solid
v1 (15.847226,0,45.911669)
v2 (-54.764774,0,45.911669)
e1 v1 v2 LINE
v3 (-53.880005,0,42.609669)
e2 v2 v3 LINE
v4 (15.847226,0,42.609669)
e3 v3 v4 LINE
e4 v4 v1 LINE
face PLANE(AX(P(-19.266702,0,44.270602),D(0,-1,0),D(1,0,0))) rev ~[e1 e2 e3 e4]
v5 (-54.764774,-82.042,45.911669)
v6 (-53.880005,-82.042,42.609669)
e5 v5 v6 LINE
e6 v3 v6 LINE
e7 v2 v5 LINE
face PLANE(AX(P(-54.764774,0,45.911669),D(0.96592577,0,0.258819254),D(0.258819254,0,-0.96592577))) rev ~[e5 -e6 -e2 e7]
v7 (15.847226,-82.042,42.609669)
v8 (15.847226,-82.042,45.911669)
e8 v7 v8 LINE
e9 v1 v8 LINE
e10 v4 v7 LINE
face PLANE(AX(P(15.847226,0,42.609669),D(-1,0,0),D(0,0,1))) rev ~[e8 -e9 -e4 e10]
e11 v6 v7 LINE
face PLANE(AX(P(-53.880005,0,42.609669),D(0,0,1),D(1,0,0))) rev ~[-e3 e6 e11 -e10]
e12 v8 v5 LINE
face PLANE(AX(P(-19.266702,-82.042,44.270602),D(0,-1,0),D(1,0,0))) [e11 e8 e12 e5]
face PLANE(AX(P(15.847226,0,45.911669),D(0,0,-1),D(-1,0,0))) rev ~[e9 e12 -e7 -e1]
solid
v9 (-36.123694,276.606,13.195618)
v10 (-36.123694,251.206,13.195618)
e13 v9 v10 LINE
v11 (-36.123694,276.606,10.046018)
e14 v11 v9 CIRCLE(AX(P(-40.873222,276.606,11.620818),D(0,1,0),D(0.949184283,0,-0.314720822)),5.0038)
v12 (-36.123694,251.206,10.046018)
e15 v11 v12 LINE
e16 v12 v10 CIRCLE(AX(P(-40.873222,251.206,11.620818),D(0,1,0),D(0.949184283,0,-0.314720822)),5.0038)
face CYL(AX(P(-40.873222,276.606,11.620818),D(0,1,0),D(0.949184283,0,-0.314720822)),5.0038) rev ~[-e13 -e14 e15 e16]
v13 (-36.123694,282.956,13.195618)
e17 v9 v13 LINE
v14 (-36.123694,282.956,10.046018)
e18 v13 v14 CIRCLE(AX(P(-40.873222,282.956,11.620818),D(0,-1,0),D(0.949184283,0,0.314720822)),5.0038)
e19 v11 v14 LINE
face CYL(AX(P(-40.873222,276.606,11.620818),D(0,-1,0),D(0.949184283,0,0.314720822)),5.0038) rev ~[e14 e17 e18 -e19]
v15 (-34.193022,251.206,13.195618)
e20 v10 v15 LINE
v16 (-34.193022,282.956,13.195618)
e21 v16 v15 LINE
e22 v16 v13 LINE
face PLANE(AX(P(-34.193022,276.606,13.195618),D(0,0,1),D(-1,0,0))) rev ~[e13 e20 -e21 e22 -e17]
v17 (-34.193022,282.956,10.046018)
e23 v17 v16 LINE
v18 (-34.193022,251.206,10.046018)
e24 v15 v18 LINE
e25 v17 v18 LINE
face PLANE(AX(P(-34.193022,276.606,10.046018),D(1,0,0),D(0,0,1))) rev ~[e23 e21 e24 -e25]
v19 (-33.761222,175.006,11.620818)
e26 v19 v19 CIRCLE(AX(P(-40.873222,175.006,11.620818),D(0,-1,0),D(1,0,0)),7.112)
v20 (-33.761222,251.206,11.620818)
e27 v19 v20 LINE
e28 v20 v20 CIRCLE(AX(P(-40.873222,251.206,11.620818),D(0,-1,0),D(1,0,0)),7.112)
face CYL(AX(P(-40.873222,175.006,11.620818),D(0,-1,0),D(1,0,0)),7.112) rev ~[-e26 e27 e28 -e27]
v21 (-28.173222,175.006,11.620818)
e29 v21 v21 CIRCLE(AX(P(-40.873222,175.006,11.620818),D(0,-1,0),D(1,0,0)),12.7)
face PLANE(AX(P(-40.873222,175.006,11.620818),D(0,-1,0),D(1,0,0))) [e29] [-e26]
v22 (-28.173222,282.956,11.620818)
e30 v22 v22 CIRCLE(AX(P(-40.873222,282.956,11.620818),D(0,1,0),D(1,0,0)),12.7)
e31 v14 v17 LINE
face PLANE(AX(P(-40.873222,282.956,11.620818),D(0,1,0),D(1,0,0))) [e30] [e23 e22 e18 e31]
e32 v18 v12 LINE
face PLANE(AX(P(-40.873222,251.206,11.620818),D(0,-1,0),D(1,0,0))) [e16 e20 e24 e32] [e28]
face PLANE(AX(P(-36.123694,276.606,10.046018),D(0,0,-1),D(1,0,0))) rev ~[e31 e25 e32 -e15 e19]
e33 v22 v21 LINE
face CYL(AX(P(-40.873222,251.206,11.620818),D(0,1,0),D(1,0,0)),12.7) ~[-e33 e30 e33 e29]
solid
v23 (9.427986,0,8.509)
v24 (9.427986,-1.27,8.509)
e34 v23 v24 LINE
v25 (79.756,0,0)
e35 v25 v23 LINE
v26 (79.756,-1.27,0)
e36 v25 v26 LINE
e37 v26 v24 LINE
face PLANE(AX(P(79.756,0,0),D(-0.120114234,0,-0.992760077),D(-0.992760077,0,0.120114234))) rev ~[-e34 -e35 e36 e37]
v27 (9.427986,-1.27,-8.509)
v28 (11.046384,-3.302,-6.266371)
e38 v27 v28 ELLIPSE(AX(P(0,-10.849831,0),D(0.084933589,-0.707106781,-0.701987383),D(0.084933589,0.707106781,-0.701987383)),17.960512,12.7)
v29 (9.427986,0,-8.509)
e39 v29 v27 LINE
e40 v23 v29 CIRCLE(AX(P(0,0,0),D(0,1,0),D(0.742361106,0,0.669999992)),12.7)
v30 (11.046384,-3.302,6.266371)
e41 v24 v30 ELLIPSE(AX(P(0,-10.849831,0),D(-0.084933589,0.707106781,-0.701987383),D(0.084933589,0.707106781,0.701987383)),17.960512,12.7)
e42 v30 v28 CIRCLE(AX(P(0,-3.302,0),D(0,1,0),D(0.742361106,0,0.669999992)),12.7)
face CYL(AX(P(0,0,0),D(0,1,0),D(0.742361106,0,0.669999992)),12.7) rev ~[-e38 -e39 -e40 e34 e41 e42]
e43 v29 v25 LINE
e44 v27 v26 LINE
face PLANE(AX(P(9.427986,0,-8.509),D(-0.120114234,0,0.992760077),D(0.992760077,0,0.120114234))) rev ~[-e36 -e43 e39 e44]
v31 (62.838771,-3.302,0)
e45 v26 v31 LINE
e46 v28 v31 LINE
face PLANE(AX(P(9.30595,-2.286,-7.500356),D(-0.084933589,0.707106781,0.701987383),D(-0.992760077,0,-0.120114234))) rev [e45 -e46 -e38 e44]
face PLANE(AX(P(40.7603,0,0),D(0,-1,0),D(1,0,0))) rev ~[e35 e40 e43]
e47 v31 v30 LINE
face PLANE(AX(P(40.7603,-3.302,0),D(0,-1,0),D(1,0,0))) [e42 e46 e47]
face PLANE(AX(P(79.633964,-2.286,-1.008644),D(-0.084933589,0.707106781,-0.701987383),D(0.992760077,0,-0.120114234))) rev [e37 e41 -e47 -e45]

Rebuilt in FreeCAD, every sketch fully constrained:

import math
import FreeCAD as App
import Part
import Sketcher
from FreeCAD import Vector
Q = App.Units.Quantity


def edges_at(feature, points):
    """Names of the edges that pass closest to the given points."""
    edges = feature.Shape.Edges
    near = lambda p: min(range(len(edges)), key=lambda i: edges[i].distToShape(Part.Vertex(*p))[0])
    return sorted({f"Edge{near(p) + 1}" for p in points})

doc = App.newDocument("Part")
body = doc.addObject("PartDesign::Body", "Body")

sketch1 = doc.addObject("Sketcher::SketchObject", "Sketch")
body.addObject(sketch1)
sketch1.AttachmentSupport = (doc.XZ_Plane, [""])
sketch1.MapMode = "FlatFace"
sketch1.addGeometry([
    Part.LineSegment(Vector(-54.8, 45.9, 0), Vector(-53.9, 42.6, 0)),
    Part.LineSegment(Vector(-53.9, 42.6, 0), Vector(15.8, 42.6, 0)),
    Part.LineSegment(Vector(15.8, 42.6, 0), Vector(15.8, 45.9, 0)),
    Part.LineSegment(Vector(15.8, 45.9, 0), Vector(-54.8, 45.9, 0)),
], False)
sketch1.addConstraint([
    Sketcher.Constraint("Coincident", 0, 2, 1, 1),
    Sketcher.Constraint("Coincident", 1, 2, 2, 1),
    Sketcher.Constraint("Coincident", 2, 2, 3, 1),
    Sketcher.Constraint("Coincident", 3, 2, 0, 1),
    Sketcher.Constraint("Horizontal", 1),
    Sketcher.Constraint("Vertical", 2),
    Sketcher.Constraint("Horizontal", 3),
    Sketcher.Constraint("Angle", 0, Q("-74.999988 deg")),
    Sketcher.Constraint("DistanceX", 3, 2, 3, 1, Q("2.78 in")),
    Sketcher.Constraint("DistanceY", 2, 1, 2, 2, Q("0.13 in")),
    Sketcher.Constraint("DistanceY", -1, 1, 0, 2, Q("42.609669 mm")),
    Sketcher.Constraint("DistanceX", 0, 2, -1, 1, Q("53.880005 mm")),
])
pad1 = doc.addObject("PartDesign::Pad", "Pad")
body.addObject(pad1)
pad1.Profile = sketch1
pad1.Length = Q("3.23 in")
body2 = doc.addObject("PartDesign::Body", "Body001")

sketch2 = doc.addObject("Sketcher::SketchObject", "Sketch001")
body2.addObject(sketch2)
sketch2.AttachmentSupport = (doc.getObject("XZ_Plane001"), [""])
sketch2.MapMode = "FlatFace"
sketch2.addGeometry([
    Part.Circle(Vector(-40.9, 11.6, 0), Vector(0, 0, 1), 12.7),
    Part.LineSegment(Vector(-34.2, 10, 0), Vector(-36.1, 10, 0)),
    Part.ArcOfCircle(Part.Circle(Vector(-40.9, 11.6, 0), Vector(0, 0, 1), 5), math.radians(18), math.radians(342)),
    Part.LineSegment(Vector(-36.1, 13.2, 0), Vector(-34.2, 13.2, 0)),
    Part.LineSegment(Vector(-34.2, 13.2, 0), Vector(-34.2, 10, 0)),
], False)
sketch2.addConstraint([
    Sketcher.Constraint("Coincident", 1, 2, 2, 2),
    Sketcher.Constraint("Coincident", 2, 1, 3, 1),
    Sketcher.Constraint("Coincident", 3, 2, 4, 1),
    Sketcher.Constraint("Coincident", 4, 2, 1, 1),
    Sketcher.Constraint("Horizontal", 1),
    Sketcher.Constraint("Horizontal", 3),
    Sketcher.Constraint("Vertical", 4),
    Sketcher.Constraint("Coincident", 2, 3, 0, 3),
    Sketcher.Constraint("Vertical", 1, 2, 2, 1),
    Sketcher.Constraint("Diameter", 0, Q("1 in")),
    Sketcher.Constraint("Radius", 2, Q("0.197 in")),
    Sketcher.Constraint("DistanceY", 4, 2, 4, 1, Q("0.124 in")),
    Sketcher.Constraint("DistanceX", 0, 3, 3, 2, Q("0.263 in")),
    Sketcher.Constraint("DistanceX", 0, 3, -1, 1, Q("40.873222 mm")),
    Sketcher.Constraint("DistanceY", -1, 1, 0, 3, Q("11.620818 mm")),
])
pad2 = doc.addObject("PartDesign::Pad", "Pad001")
body2.addObject(pad2)
pad2.Profile = sketch2
pad2.Length = Q("1 in")

sketch3 = doc.addObject("Sketcher::SketchObject", "Sketch002")
body2.addObject(sketch3)
sketch3.AttachmentSupport = (doc.getObject("XZ_Plane001"), [""])
sketch3.MapMode = "FlatFace"
sketch3.addGeometry([
    Part.Circle(Vector(-40.9, 11.6, 0), Vector(0, 0, 1), 12.7),
    Part.LineSegment(Vector(-34.2, 13.2, 0), Vector(-36.1, 13.2, 0)),
    Part.ArcOfCircle(Part.Circle(Vector(-40.9, 11.6, 0), Vector(0, 0, 1), 5), math.radians(18), math.radians(342)),
    Part.LineSegment(Vector(-36.1, 10, 0), Vector(-34.2, 10, 0)),
    Part.LineSegment(Vector(-34.2, 10, 0), Vector(-34.2, 13.2, 0)),
], False)
sketch3.addConstraint([
    Sketcher.Constraint("Coincident", 1, 2, 2, 1),
    Sketcher.Constraint("Coincident", 2, 2, 3, 1),
    Sketcher.Constraint("Coincident", 3, 2, 4, 1),
    Sketcher.Constraint("Coincident", 4, 2, 1, 1),
    Sketcher.Constraint("Horizontal", 1),
    Sketcher.Constraint("Horizontal", 3),
    Sketcher.Constraint("Vertical", 4),
    Sketcher.Constraint("Coincident", 2, 3, 0, 3),
    Sketcher.Constraint("Vertical", 1, 2, 2, 2),
    Sketcher.Constraint("Diameter", 0, Q("1 in")),
    Sketcher.Constraint("Radius", 2, Q("0.197 in")),
    Sketcher.Constraint("DistanceY", 4, 1, 4, 2, Q("0.124 in")),
    Sketcher.Constraint("DistanceX", 0, 3, 3, 2, Q("0.263 in")),
    Sketcher.Constraint("DistanceX", 0, 3, -1, 1, Q("40.873222 mm")),
    Sketcher.Constraint("DistanceY", -1, 1, 2, 2, Q("10.046018 mm")),
])
pad3 = doc.addObject("PartDesign::Pad", "Pad002")
body2.addObject(pad3)
pad3.Profile = sketch3
pad3.Length = Q("0.25 in")
pad3.Reversed = True
body3 = doc.addObject("PartDesign::Body", "Body002")

sketch4 = doc.addObject("Sketcher::SketchObject", "Sketch003")
body3.addObject(sketch4)
sketch4.AttachmentSupport = (doc.getObject("XZ_Plane002"), [""])
sketch4.MapMode = "FlatFace"
sketch4.addGeometry([
    Part.ArcOfCircle(Part.Circle(Vector(0, 0, 0), Vector(0, 0, 1), 13), math.radians(-42), math.radians(42)),
    Part.LineSegment(Vector(9, -9, 0), Vector(80, 0, 0)),
    Part.LineSegment(Vector(80, 0, 0), Vector(9, 9, 0)),
], False)
sketch4.addConstraint([
    Sketcher.Constraint("Coincident", 0, 1, 1, 1),
    Sketcher.Constraint("Coincident", 1, 2, 2, 1),
    Sketcher.Constraint("Coincident", 2, 2, 0, 2),
    Sketcher.Constraint("Coincident", 0, 3, -1, 1),
    Sketcher.Constraint("PointOnObject", 1, 2, -1),
    Sketcher.Constraint("Vertical", 0, 1, 2, 2),
    Sketcher.Constraint("Radius", 0, Q("0.5 in")),
    Sketcher.Constraint("DistanceX", -1, 1, 1, 2, Q("3.14 in")),
    Sketcher.Constraint("DistanceY", 0, 1, 2, 2, Q("0.67 in")),
])
pad4 = doc.addObject("PartDesign::Pad", "Pad003")
body3.addObject(pad4)
pad4.Profile = sketch4
pad4.Length = Q("0.13 in")
doc.recompute()

chamfer = doc.addObject("PartDesign::Chamfer", "Chamfer")
body3.addObject(chamfer)
chamfer.Base = (pad4, edges_at(pad4, [(44.592, -3.302, 4.255), (44.592, -3.302, -4.255)]))
chamfer.Size = Q("0.08 in")
body4 = doc.addObject("PartDesign::Body", "Body003")
doc.recompute()

body2.Placement = App.Placement(Vector(0, 276.606, 0), App.Rotation(Vector(0, 0, 1), 0))
boolean = doc.addObject("PartDesign::Boolean", "Boolean")
body4.addObject(boolean)
boolean.Type = "Fuse"
boolean.addObjects([body2])

sketch5 = doc.addObject("Sketcher::SketchObject", "Sketch004")
body4.addObject(sketch5)
sketch5.AttachmentSupport = (doc.getObject("XZ_Plane003"), [""])
sketch5.MapMode = "FlatFace"
sketch5.AttachmentOffset = App.Placement(Vector(0, 0, -9.89 * 25.4), App.Rotation())
sketch5.addGeometry(Part.Circle(Vector(-41, 12, 0), Vector(0, 0, 1), 13), False)
sketch5.addConstraint([
    Sketcher.Constraint("Diameter", 0, Q("1 in")),
    Sketcher.Constraint("DistanceX", 0, 3, -1, 1, Q("40.873222 mm")),
    Sketcher.Constraint("DistanceY", -1, 1, 0, 3, Q("11.620818 mm")),
])
pad5 = doc.addObject("PartDesign::Pad", "Pad004")
body4.addObject(pad5)
pad5.Profile = sketch5
pad5.Length = Q("3 in")

sketch6 = doc.addObject("Sketcher::SketchObject", "Sketch005")
body4.addObject(sketch6)
sketch6.AttachmentSupport = (doc.getObject("XZ_Plane003"), [""])
sketch6.MapMode = "FlatFace"
sketch6.AttachmentOffset = App.Placement(Vector(0, 0, -6.89 * 25.4), App.Rotation())
sketch6.addGeometry(Part.Circle(Vector(-41, 12, 0), Vector(0, 0, 1), 7), False)
sketch6.addConstraint([
    Sketcher.Constraint("Diameter", 0, Q("0.56 in")),
    Sketcher.Constraint("DistanceX", 0, 3, -1, 1, Q("40.873222 mm")),
    Sketcher.Constraint("DistanceY", -1, 1, 0, 3, Q("11.620818 mm")),
])
pocket1 = doc.addObject("PartDesign::Pocket", "Pocket")
body4.addObject(pocket1)
pocket1.Profile = sketch6
pocket1.Length = Q("3 in")

doc.recompute()
